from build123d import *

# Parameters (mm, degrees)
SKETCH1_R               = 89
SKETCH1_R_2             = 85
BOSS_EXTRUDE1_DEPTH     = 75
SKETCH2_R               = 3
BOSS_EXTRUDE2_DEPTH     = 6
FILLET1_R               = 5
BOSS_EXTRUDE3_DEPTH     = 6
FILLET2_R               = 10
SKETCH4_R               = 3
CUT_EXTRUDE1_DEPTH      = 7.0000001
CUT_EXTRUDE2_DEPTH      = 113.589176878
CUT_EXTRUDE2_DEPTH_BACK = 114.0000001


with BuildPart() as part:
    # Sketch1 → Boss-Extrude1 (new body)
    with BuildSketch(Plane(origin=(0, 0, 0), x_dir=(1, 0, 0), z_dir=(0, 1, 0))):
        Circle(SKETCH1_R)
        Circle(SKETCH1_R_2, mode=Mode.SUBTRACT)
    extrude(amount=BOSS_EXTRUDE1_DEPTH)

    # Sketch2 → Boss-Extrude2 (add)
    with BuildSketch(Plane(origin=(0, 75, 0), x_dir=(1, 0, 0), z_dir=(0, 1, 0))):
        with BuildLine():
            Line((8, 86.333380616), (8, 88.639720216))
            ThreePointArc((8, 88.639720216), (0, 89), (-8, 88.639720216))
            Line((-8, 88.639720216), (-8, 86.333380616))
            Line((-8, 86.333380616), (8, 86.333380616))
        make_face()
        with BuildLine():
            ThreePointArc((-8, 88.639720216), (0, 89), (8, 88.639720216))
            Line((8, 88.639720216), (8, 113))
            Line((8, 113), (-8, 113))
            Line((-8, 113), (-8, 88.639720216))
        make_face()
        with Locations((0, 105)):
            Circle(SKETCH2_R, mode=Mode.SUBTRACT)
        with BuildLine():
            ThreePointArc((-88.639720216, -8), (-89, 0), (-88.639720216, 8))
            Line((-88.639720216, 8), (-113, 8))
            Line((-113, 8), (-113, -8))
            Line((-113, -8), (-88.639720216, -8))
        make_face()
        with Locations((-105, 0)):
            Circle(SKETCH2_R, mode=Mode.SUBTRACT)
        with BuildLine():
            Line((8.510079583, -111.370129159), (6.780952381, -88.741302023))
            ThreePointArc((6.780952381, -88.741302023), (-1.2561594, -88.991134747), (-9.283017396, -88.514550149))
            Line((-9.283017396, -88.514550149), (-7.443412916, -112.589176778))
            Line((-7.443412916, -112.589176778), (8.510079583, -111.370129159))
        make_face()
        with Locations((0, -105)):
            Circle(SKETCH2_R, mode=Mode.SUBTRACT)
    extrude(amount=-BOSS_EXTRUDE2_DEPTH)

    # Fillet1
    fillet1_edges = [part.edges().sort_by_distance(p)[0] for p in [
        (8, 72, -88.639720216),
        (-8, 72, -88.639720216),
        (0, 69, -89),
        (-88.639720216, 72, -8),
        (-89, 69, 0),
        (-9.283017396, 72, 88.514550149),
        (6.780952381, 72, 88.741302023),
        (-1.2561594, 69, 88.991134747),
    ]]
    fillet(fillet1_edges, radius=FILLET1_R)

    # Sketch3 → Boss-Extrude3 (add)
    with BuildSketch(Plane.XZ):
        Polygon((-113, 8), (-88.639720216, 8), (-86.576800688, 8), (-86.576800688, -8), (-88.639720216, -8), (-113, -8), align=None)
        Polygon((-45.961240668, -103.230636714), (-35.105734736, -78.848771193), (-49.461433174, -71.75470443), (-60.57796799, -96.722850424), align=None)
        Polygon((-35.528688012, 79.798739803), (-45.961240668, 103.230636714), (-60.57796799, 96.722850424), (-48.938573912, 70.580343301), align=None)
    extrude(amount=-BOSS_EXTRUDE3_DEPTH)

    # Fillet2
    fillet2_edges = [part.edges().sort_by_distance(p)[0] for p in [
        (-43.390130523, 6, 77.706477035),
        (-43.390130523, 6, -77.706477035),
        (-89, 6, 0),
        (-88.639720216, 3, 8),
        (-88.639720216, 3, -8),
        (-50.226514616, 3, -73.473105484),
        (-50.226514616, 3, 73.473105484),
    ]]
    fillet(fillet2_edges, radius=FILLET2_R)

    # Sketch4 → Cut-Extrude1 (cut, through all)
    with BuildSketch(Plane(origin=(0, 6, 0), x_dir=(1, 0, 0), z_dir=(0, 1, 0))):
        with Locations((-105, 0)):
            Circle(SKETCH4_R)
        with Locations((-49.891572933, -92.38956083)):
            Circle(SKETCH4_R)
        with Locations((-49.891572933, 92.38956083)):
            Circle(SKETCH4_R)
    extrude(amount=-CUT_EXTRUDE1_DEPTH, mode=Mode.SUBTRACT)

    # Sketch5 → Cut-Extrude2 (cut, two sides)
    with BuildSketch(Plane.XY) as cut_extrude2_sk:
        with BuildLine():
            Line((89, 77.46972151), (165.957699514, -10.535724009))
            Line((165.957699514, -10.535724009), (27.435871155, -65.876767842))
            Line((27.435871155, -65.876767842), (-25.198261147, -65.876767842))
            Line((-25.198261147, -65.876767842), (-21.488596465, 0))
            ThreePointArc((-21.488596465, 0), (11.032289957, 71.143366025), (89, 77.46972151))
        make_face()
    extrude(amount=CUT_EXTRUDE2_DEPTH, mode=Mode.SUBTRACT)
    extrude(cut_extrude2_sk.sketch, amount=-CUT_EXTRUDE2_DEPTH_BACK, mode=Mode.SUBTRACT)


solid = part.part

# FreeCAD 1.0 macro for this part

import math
import FreeCAD as App
import Part
import Sketcher

V = App.Vector
Q = App.Units.Quantity


def edges_at(feature, points):
    """Names of the edges that pass closest to the given points."""
    edges = feature.Shape.Edges
    near = lambda p: min(range(len(edges)), key=lambda i: edges[i].distToShape(Part.Vertex(*p))[0])
    return sorted({f"Edge{near(p) + 1}" for p in points})

doc = App.newDocument("Part")
body = doc.addObject("PartDesign::Body", "Body")

# Sketch on XZ plane
sketch1 = body.newObject("Sketcher::SketchObject", "Sketch")
sketch1.AttachmentSupport = (doc.getObject("XZ_Plane"), [""])
sketch1.MapMode = "FlatFace"
sketch1.addGeometry([
    Part.Circle(V(0, 0, 0), V(0, 0, 1), 89),
    Part.Circle(V(0, 0, 0), V(0, 0, 1), 85),
], False)
sketch1.addConstraint([
    Sketcher.Constraint("Coincident", 0, 3, -1, 1),
    Sketcher.Constraint("Coincident", 1, 3, -1, 1),
    Sketcher.Constraint("Diameter", 0, Q("178 mm")),
    Sketcher.Constraint("Diameter", 1, Q("170 mm")),
])
pad1 = body.newObject("PartDesign::Pad", "Pad")
pad1.Profile = sketch1
pad1.Length = 75
pad1.Reversed = True

# Sketch on XZ plane
sketch2 = body.newObject("Sketcher::SketchObject", "Sketch001")
sketch2.AttachmentSupport = (doc.getObject("XZ_Plane"), [""])
sketch2.MapMode = "FlatFace"
sketch2.AttachmentOffset = App.Placement(V(0, 0, -75), App.Rotation())
sketch2.addGeometry([
    Part.LineSegment(V(8, -86.333381, 0), V(8, -113, 0)),  # 0
    Part.LineSegment(V(8, -113, 0), V(-8, -113, 0)),  # 1
    Part.LineSegment(V(-8, -113, 0), V(-8, -86.333381, 0)),  # 2
    Part.LineSegment(V(-8, -86.333381, 0), V(8, -86.333381, 0)),  # 3
    Part.Circle(V(0, -105, 0), V(0, 0, 1), 3),  # 4
    Part.ArcOfCircle(Part.Circle(V(0, 0, 0), V(0, 0, 1), 89), math.radians(174.842857), math.radians(185.157143)),  # 5
    Part.LineSegment(V(-88.63972, -8, 0), V(-113, -8, 0)),  # 6
    Part.LineSegment(V(-113, -8, 0), V(-113, 8, 0)),  # 7
    Part.LineSegment(V(-113, 8, 0), V(-88.63972, 8, 0)),  # 8
    Part.Circle(V(-105, 0, 0), V(0, 0, 1), 3),  # 9
    Part.LineSegment(V(8.51008, 111.370129, 0), V(6.780952, 88.741302, 0)),  # 10
    Part.ArcOfCircle(Part.Circle(V(0, 0, 0), V(0, 0, 1), 89), math.radians(85.630373), math.radians(95.987044)),  # 11
    Part.LineSegment(V(-9.283017, 88.51455, 0), V(-7.443413, 112.589177, 0)),  # 12
    Part.LineSegment(V(-7.443413, 112.589177, 0), V(8.51008, 111.370129, 0)),  # 13
    Part.Circle(V(0, 105, 0), V(0, 0, 1), 3),  # 14
], False)
sketch2.addConstraint([
    Sketcher.Constraint("Coincident", 0, 2, 1, 1),
    Sketcher.Constraint("Coincident", 1, 2, 2, 1),
    Sketcher.Constraint("Coincident", 2, 2, 3, 1),
    Sketcher.Constraint("Coincident", 3, 2, 0, 1),
    Sketcher.Constraint("Coincident", 5, 2, 6, 1),
    Sketcher.Constraint("Coincident", 6, 2, 7, 1),
    Sketcher.Constraint("Coincident", 7, 2, 8, 1),
    Sketcher.Constraint("Coincident", 8, 2, 5, 1),
    Sketcher.Constraint("Coincident", 10, 2, 11, 1),
    Sketcher.Constraint("Coincident", 11, 2, 12, 1),
    Sketcher.Constraint("Coincident", 12, 2, 13, 1),
    Sketcher.Constraint("Coincident", 13, 2, 10, 1),
    Sketcher.Constraint("Vertical", 0),
    Sketcher.Constraint("Horizontal", 1),
    Sketcher.Constraint("Vertical", 2),
    Sketcher.Constraint("Horizontal", 3),
    Sketcher.Constraint("Horizontal", 6),
    Sketcher.Constraint("Vertical", 7),
    Sketcher.Constraint("Horizontal", 8),
    Sketcher.Constraint("Coincident", 5, 3, -1, 1),
    Sketcher.Constraint("Coincident", 11, 3, -1, 1),
    Sketcher.Constraint("Equal", 4, 9),
    Sketcher.Constraint("Equal", 5, 11),
    Sketcher.Constraint("Equal", 9, 14),
    Sketcher.Constraint("Symmetric", 4, 3, 14, 3, -1, 1),
    Sketcher.Constraint("PointOnObject", 4, 3, -2),
    Sketcher.Constraint("PointOnObject", 9, 3, -1),
    Sketcher.Constraint("Parallel", 10, 12),
    Sketcher.Constraint("Perpendicular", 12, 13),
    Sketcher.Constraint("Vertical", 5, 2, 8, 2),
    Sketcher.Constraint("Equal", 3, 7),
    Sketcher.Constraint("Diameter", 4, Q("6 mm")),
    Sketcher.Constraint("Radius", 5, Q("89 mm")),
    Sketcher.Constraint("DistanceX", 1, 2, 1, 1, Q("16 mm")),
    Sketcher.Constraint("Distance", 13, Q("16 mm")),
    Sketcher.Constraint("DistanceY", 4, 3, -1, 1, Q("105 mm")),
    Sketcher.Constraint("DistanceX", 9, 3, -1, 1, Q("105 mm")),
    Sketcher.Constraint("DistanceX", -1, 1, 0, 2, Q("8 mm")),
    Sketcher.Constraint("DistanceY", 0, 2, -1, 1, Q("113 mm")),
    Sketcher.Constraint("DistanceX", 6, 2, -1, 1, Q("113 mm")),
    Sketcher.Constraint("DistanceY", 0, 2, 0, 1, Q("26.666619 mm")),
    Sketcher.Constraint("Distance", 12, Q("24.144809 mm")),
    Sketcher.Constraint("DistanceY", -1, 1, 11, 2, Q("88.51455 mm")),
    Sketcher.Constraint("DistanceX", -1, 1, 13, 2, Q("8.51008 mm")),
])
pad2 = body.newObject("PartDesign::Pad", "Pad001")
pad2.Profile = sketch2
pad2.Length = 6
doc.recompute()

fillet = body.newObject("PartDesign::Fillet", "Fillet")
fillet.Base = (pad2, edges_at(pad2, [
    (8, 72, -88.64),
    (-8, 72, -88.64),
    (0, 69, -89),
    (-88.64, 72, -8),
    (-89, 69, 0),
    (-9.283, 72, 88.515),
    (6.781, 72, 88.741),
    (-1.256, 69, 88.991),
]))
fillet.Radius = 5

# Sketch on XZ plane
sketch3 = body.newObject("Sketcher::SketchObject", "Sketch002")
sketch3.AttachmentSupport = (doc.getObject("XZ_Plane"), [""])
sketch3.MapMode = "FlatFace"
sketch3.addGeometry([
    Part.LineSegment(V(-86.576801, 8, 0), V(-113, 8, 0)),  # 0
    Part.LineSegment(V(-113, 8, 0), V(-113, -8, 0)),  # 1
    Part.LineSegment(V(-113, -8, 0), V(-86.576801, -8, 0)),  # 2
    Part.LineSegment(V(-86.576801, -8, 0), V(-86.576801, 8, 0)),  # 3
    Part.LineSegment(V(-45.961241, -103.230637, 0), V(-35.105735, -78.848771, 0)),  # 4
    Part.LineSegment(V(-35.105735, -78.848771, 0), V(-49.461433, -71.754704, 0)),  # 5
    Part.LineSegment(V(-49.461433, -71.754704, 0), V(-60.577968, -96.72285, 0)),  # 6
    Part.LineSegment(V(-60.577968, -96.72285, 0), V(-45.961241, -103.230637, 0)),  # 7
    Part.LineSegment(V(-35.528688, 79.79874, 0), V(-45.961241, 103.230637, 0)),  # 8
    Part.LineSegment(V(-45.961241, 103.230637, 0), V(-60.577968, 96.72285, 0)),  # 9
    Part.LineSegment(V(-60.577968, 96.72285, 0), V(-48.938574, 70.580343, 0)),  # 10
    Part.LineSegment(V(-48.938574, 70.580343, 0), V(-35.528688, 79.79874, 0)),  # 11
], False)
sketch3.addConstraint([
    Sketcher.Constraint("Coincident", 0, 2, 1, 1),
    Sketcher.Constraint("Coincident", 1, 2, 2, 1),
    Sketcher.Constraint("Coincident", 2, 2, 3, 1),
    Sketcher.Constraint("Coincident", 3, 2, 0, 1),
    Sketcher.Constraint("Coincident", 4, 2, 5, 1),
    Sketcher.Constraint("Coincident", 5, 2, 6, 1),
    Sketcher.Constraint("Coincident", 6, 2, 7, 1),
    Sketcher.Constraint("Coincident", 7, 2, 4, 1),
    Sketcher.Constraint("Coincident", 8, 2, 9, 1),
    Sketcher.Constraint("Coincident", 9, 2, 10, 1),
    Sketcher.Constraint("Coincident", 10, 2, 11, 1),
    Sketcher.Constraint("Coincident", 11, 2, 8, 1),
    Sketcher.Constraint("Horizontal", 0),
    Sketcher.Constraint("Vertical", 1),
    Sketcher.Constraint("Horizontal", 2),
    Sketcher.Constraint("Vertical", 3),
    Sketcher.Constraint("Symmetric", 7, 2, 8, 2, -1),
    Sketcher.Constraint("Symmetric", 6, 2, 9, 2, -1),
    Sketcher.Constraint("Parallel", 4, 6),
    Sketcher.Constraint("Perpendicular", 6, 7),
    Sketcher.Constraint("Perpendicular", 8, 9),
    Sketcher.Constraint("Perpendicular", 9, 10),
    Sketcher.Constraint("DistanceY", 1, 2, 1, 1, Q("16 mm")),
    Sketcher.Constraint("Angle", 4, Q("66 deg")),
    Sketcher.Constraint("Distance", 7, Q("16 mm")),
    Sketcher.Constraint("DistanceX", 0, 2, -1, 1, Q("113 mm")),
    Sketcher.Constraint("DistanceY", -1, 1, 0, 2, Q("8 mm")),
    Sketcher.Constraint("DistanceX", 0, 2, 0, 1, Q("26.423199 mm")),
    Sketcher.Constraint("DistanceX", 5, 2, 4, 2, Q("14.355698 mm")),
    Sketcher.Constraint("Distance", 6, Q("27.331038 mm")),
    Sketcher.Constraint("DistanceY", 4, 2, -1, 1, Q("78.848771 mm")),
    Sketcher.Constraint("DistanceX", 7, 2, -1, 1, Q("45.961241 mm")),
    Sketcher.Constraint("DistanceX", 11, 2, -1, 1, Q("35.528688 mm")),
    Sketcher.Constraint("Distance", 10, Q("28.616537 mm")),
])
pad3 = body.newObject("PartDesign::Pad", "Pad002")
pad3.Profile = sketch3
pad3.Length = 6
pad3.Reversed = True
doc.recompute()

fillet2 = body.newObject("PartDesign::Fillet", "Fillet001")
fillet2.Base = (pad3, edges_at(pad3, [
    (-43.39, 6, 77.706),
    (-43.39, 6, -77.706),
    (-89, 6, 0),
    (-88.64, 3, 8),
    (-88.64, 3, -8),
    (-50.227, 3, -73.473),
    (-50.227, 3, 73.473),
]))
fillet2.Radius = 10

# Sketch on XZ plane
sketch4 = body.newObject("Sketcher::SketchObject", "Sketch003")
sketch4.AttachmentSupport = (doc.getObject("XZ_Plane"), [""])
sketch4.MapMode = "FlatFace"
sketch4.AttachmentOffset = App.Placement(V(0, 0, -6), App.Rotation())
sketch4.addGeometry([
    Part.Circle(V(-105, 0, 0), V(0, 0, 1), 3),
    Part.Circle(V(-49.891573, 92.389561, 0), V(0, 0, 1), 3),
    Part.Circle(V(-49.891573, -92.389561, 0), V(0, 0, 1), 3),
], False)
sketch4.addConstraint([
    Sketcher.Constraint("Equal", 0, 1),
    Sketcher.Constraint("Equal", 1, 2),
    Sketcher.Constraint("Symmetric", 1, 3, 2, 3, -1),
    Sketcher.Constraint("PointOnObject", 0, 3, -1),
    Sketcher.Constraint("Diameter", 0, Q("6 mm")),
    Sketcher.Constraint("DistanceX", 0, 3, -1, 1, Q("105 mm")),
    Sketcher.Constraint("DistanceY", -1, 1, 1, 3, Q("92.389561 mm")),
    Sketcher.Constraint("DistanceX", 1, 3, -1, 1, Q("49.891573 mm")),
])
pocket1 = body.newObject("PartDesign::Pocket", "Pocket")
pocket1.Profile = sketch4
pocket1.Type = "ThroughAll"
pocket1.Reversed = True

# Sketch on XY plane
sketch5 = body.newObject("Sketcher::SketchObject", "Sketch004")
sketch5.AttachmentSupport = (doc.getObject("XY_Plane"), [""])
sketch5.MapMode = "FlatFace"
sketch5.addGeometry([
    Part.LineSegment(V(165.9577, -10.535724, 0), V(89, 77.469722, 0)),  # 0
    Part.ArcOfCircle(Part.Circle(V(55.408172, 7.85375, 0), V(0, 0, 1), 77.296794), math.radians(64.241274), math.radians(185.831608)),  # 1
    Part.LineSegment(V(-21.488596, 0, 0), V(-25.198261, -65.876768, 0)),  # 2
    Part.LineSegment(V(-25.198261, -65.876768, 0), V(27.435871, -65.876768, 0)),  # 3
    Part.LineSegment(V(27.435871, -65.876768, 0), V(165.9577, -10.535724, 0)),  # 4
], False)
sketch5.addConstraint([
    Sketcher.Constraint("Coincident", 0, 2, 1, 1),
    Sketcher.Constraint("Coincident", 1, 2, 2, 1),
    Sketcher.Constraint("Coincident", 2, 2, 3, 1),
    Sketcher.Constraint("Coincident", 3, 2, 4, 1),
    Sketcher.Constraint("Coincident", 4, 2, 0, 1),
    Sketcher.Constraint("Horizontal", 3),
    Sketcher.Constraint("PointOnObject", 1, 2, -1),
    Sketcher.Constraint("DistanceX", -1, 1, 0, 2, Q("89 mm")),
    Sketcher.Constraint("Radius", 1, Q("77.296794 mm")),
    Sketcher.Constraint("DistanceX", -1, 1, 4, 2, Q("165.9577 mm")),
    Sketcher.Constraint("DistanceX", 3, 2, 1, 3, Q("27.972301 mm")),
    Sketcher.Constraint("Distance", 4, Q("149.16745 mm")),
    Sketcher.Constraint("DistanceX", 3, 1, 3, 2, Q("52.634132 mm")),
    Sketcher.Constraint("DistanceX", -1, 1, 1, 3, Q("55.408172 mm")),
    Sketcher.Constraint("DistanceY", -1, 1, 1, 3, Q("7.85375 mm")),
    Sketcher.Constraint("DistanceY", 2, 2, 0, 2, Q("143.346489 mm")),
])
pocket2 = body.newObject("PartDesign::Pocket", "Pocket001")
pocket2.Profile = sketch5
pocket2.Type = "ThroughAll"
pocket2.Midplane = True

doc.recompute()
